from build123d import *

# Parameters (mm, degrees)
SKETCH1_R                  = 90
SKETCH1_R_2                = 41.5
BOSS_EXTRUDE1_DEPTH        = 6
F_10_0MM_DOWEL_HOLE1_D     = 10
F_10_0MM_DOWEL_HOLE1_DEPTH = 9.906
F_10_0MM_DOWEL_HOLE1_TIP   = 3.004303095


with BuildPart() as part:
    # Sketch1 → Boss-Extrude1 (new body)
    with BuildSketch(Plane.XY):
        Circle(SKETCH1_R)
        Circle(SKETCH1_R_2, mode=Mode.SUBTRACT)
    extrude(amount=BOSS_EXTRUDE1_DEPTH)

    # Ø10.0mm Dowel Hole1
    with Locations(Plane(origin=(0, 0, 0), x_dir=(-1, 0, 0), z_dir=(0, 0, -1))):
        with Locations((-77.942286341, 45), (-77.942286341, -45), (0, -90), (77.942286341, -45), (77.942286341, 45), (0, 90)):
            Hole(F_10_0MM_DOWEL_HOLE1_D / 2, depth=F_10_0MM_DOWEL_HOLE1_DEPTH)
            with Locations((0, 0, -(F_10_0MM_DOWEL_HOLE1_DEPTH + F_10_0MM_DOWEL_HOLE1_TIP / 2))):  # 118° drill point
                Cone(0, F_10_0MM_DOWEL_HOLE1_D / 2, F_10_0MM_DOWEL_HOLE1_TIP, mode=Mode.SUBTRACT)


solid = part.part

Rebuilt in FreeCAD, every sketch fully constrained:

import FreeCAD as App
import Part
import Sketcher

V = App.Vector
Q = App.Units.Quantity

doc = App.newDocument("Part")
body = doc.addObject("PartDesign::Body", "Body")

sketch1 = doc.addObject("Sketcher::SketchObject", "Sketch")
body.addObject(sketch1)
sketch1.AttachmentSupport = (doc.XY_Plane, [""])
sketch1.MapMode = "FlatFace"
sketch1.addGeometry(Part.Circle(V(0, 0, 0), V(0, 0, 1), 90), False)
sketch1.addGeometry(Part.Circle(V(0, 0, 0), V(0, 0, 1), 42), False)
sketch1.addConstraint(Sketcher.Constraint("Coincident", 0, 3, -1, 1))
sketch1.addConstraint(Sketcher.Constraint("Coincident", 1, 3, -1, 1))
sketch1.addConstraint(Sketcher.Constraint("Diameter", 0, Q("180 mm")))
sketch1.addConstraint(Sketcher.Constraint("Diameter", 1, Q("83 mm")))
pad1 = doc.addObject("PartDesign::Pad", "Pad")
body.addObject(pad1)
pad1.Profile = sketch1
pad1.Length = 6

sketch2 = doc.addObject("Sketcher::SketchObject", "Sketch001")
body.addObject(sketch2)
sketch2.AttachmentSupport = (doc.XY_Plane, [""])
sketch2.MapMode = "FlatFace"
sketch2.addGeometry(Part.Circle(V(78, 45, 0), V(0, 0, 1), 5), False)
sketch2.addGeometry(Part.Circle(V(78, -45, 0), V(0, 0, 1), 5), False)
sketch2.addGeometry(Part.Circle(V(0, -90, 0), V(0, 0, 1), 5), False)
sketch2.addGeometry(Part.Circle(V(-78, -45, 0), V(0, 0, 1), 5), False)
sketch2.addGeometry(Part.Circle(V(-78, 45, 0), V(0, 0, 1), 5), False)
sketch2.addGeometry(Part.Circle(V(0, 90, 0), V(0, 0, 1), 5), False)
sketch2.addConstraint(Sketcher.Constraint("Equal", 0, 1))
sketch2.addConstraint(Sketcher.Constraint("Equal", 1, 2))
sketch2.addConstraint(Sketcher.Constraint("Equal", 2, 3))
sketch2.addConstraint(Sketcher.Constraint("Equal", 3, 4))
sketch2.addConstraint(Sketcher.Constraint("Equal", 4, 5))
sketch2.addConstraint(Sketcher.Constraint("Symmetric", 0, 3, 3, 3, -1, 1))
sketch2.addConstraint(Sketcher.Constraint("Symmetric", 1, 3, 4, 3, -1, 1))
sketch2.addConstraint(Sketcher.Constraint("Symmetric", 2, 3, 5, 3, -1, 1))
sketch2.addConstraint(Sketcher.Constraint("Symmetric", 1, 3, 3, 3, -2))
sketch2.addConstraint(Sketcher.Constraint("PointOnObject", 2, 3, -2))
sketch2.addConstraint(Sketcher.Constraint("Diameter", 0, Q("10 mm")))
sketch2.addConstraint(Sketcher.Constraint("DistanceY", -1, 1, 0, 3, Q("45 mm")))
sketch2.addConstraint(Sketcher.Constraint("DistanceY", 2, 3, -1, 1, Q("90 mm")))
sketch2.addConstraint(Sketcher.Constraint("DistanceX", -1, 1, 0, 3, Q("77.942286 mm")))
doc.recompute()
hole = doc.addObject("PartDesign::Hole", "Hole")
body.addObject(hole)
hole.Profile = sketch2
hole.ThreadType = "None"
hole.Diameter = 10
hole.DepthType = "Dimension"
hole.Depth = 9.906
hole.DrillPoint = "Angled"
hole.DrillPointAngle = 118
hole.Reversed = True

doc.recompute()
